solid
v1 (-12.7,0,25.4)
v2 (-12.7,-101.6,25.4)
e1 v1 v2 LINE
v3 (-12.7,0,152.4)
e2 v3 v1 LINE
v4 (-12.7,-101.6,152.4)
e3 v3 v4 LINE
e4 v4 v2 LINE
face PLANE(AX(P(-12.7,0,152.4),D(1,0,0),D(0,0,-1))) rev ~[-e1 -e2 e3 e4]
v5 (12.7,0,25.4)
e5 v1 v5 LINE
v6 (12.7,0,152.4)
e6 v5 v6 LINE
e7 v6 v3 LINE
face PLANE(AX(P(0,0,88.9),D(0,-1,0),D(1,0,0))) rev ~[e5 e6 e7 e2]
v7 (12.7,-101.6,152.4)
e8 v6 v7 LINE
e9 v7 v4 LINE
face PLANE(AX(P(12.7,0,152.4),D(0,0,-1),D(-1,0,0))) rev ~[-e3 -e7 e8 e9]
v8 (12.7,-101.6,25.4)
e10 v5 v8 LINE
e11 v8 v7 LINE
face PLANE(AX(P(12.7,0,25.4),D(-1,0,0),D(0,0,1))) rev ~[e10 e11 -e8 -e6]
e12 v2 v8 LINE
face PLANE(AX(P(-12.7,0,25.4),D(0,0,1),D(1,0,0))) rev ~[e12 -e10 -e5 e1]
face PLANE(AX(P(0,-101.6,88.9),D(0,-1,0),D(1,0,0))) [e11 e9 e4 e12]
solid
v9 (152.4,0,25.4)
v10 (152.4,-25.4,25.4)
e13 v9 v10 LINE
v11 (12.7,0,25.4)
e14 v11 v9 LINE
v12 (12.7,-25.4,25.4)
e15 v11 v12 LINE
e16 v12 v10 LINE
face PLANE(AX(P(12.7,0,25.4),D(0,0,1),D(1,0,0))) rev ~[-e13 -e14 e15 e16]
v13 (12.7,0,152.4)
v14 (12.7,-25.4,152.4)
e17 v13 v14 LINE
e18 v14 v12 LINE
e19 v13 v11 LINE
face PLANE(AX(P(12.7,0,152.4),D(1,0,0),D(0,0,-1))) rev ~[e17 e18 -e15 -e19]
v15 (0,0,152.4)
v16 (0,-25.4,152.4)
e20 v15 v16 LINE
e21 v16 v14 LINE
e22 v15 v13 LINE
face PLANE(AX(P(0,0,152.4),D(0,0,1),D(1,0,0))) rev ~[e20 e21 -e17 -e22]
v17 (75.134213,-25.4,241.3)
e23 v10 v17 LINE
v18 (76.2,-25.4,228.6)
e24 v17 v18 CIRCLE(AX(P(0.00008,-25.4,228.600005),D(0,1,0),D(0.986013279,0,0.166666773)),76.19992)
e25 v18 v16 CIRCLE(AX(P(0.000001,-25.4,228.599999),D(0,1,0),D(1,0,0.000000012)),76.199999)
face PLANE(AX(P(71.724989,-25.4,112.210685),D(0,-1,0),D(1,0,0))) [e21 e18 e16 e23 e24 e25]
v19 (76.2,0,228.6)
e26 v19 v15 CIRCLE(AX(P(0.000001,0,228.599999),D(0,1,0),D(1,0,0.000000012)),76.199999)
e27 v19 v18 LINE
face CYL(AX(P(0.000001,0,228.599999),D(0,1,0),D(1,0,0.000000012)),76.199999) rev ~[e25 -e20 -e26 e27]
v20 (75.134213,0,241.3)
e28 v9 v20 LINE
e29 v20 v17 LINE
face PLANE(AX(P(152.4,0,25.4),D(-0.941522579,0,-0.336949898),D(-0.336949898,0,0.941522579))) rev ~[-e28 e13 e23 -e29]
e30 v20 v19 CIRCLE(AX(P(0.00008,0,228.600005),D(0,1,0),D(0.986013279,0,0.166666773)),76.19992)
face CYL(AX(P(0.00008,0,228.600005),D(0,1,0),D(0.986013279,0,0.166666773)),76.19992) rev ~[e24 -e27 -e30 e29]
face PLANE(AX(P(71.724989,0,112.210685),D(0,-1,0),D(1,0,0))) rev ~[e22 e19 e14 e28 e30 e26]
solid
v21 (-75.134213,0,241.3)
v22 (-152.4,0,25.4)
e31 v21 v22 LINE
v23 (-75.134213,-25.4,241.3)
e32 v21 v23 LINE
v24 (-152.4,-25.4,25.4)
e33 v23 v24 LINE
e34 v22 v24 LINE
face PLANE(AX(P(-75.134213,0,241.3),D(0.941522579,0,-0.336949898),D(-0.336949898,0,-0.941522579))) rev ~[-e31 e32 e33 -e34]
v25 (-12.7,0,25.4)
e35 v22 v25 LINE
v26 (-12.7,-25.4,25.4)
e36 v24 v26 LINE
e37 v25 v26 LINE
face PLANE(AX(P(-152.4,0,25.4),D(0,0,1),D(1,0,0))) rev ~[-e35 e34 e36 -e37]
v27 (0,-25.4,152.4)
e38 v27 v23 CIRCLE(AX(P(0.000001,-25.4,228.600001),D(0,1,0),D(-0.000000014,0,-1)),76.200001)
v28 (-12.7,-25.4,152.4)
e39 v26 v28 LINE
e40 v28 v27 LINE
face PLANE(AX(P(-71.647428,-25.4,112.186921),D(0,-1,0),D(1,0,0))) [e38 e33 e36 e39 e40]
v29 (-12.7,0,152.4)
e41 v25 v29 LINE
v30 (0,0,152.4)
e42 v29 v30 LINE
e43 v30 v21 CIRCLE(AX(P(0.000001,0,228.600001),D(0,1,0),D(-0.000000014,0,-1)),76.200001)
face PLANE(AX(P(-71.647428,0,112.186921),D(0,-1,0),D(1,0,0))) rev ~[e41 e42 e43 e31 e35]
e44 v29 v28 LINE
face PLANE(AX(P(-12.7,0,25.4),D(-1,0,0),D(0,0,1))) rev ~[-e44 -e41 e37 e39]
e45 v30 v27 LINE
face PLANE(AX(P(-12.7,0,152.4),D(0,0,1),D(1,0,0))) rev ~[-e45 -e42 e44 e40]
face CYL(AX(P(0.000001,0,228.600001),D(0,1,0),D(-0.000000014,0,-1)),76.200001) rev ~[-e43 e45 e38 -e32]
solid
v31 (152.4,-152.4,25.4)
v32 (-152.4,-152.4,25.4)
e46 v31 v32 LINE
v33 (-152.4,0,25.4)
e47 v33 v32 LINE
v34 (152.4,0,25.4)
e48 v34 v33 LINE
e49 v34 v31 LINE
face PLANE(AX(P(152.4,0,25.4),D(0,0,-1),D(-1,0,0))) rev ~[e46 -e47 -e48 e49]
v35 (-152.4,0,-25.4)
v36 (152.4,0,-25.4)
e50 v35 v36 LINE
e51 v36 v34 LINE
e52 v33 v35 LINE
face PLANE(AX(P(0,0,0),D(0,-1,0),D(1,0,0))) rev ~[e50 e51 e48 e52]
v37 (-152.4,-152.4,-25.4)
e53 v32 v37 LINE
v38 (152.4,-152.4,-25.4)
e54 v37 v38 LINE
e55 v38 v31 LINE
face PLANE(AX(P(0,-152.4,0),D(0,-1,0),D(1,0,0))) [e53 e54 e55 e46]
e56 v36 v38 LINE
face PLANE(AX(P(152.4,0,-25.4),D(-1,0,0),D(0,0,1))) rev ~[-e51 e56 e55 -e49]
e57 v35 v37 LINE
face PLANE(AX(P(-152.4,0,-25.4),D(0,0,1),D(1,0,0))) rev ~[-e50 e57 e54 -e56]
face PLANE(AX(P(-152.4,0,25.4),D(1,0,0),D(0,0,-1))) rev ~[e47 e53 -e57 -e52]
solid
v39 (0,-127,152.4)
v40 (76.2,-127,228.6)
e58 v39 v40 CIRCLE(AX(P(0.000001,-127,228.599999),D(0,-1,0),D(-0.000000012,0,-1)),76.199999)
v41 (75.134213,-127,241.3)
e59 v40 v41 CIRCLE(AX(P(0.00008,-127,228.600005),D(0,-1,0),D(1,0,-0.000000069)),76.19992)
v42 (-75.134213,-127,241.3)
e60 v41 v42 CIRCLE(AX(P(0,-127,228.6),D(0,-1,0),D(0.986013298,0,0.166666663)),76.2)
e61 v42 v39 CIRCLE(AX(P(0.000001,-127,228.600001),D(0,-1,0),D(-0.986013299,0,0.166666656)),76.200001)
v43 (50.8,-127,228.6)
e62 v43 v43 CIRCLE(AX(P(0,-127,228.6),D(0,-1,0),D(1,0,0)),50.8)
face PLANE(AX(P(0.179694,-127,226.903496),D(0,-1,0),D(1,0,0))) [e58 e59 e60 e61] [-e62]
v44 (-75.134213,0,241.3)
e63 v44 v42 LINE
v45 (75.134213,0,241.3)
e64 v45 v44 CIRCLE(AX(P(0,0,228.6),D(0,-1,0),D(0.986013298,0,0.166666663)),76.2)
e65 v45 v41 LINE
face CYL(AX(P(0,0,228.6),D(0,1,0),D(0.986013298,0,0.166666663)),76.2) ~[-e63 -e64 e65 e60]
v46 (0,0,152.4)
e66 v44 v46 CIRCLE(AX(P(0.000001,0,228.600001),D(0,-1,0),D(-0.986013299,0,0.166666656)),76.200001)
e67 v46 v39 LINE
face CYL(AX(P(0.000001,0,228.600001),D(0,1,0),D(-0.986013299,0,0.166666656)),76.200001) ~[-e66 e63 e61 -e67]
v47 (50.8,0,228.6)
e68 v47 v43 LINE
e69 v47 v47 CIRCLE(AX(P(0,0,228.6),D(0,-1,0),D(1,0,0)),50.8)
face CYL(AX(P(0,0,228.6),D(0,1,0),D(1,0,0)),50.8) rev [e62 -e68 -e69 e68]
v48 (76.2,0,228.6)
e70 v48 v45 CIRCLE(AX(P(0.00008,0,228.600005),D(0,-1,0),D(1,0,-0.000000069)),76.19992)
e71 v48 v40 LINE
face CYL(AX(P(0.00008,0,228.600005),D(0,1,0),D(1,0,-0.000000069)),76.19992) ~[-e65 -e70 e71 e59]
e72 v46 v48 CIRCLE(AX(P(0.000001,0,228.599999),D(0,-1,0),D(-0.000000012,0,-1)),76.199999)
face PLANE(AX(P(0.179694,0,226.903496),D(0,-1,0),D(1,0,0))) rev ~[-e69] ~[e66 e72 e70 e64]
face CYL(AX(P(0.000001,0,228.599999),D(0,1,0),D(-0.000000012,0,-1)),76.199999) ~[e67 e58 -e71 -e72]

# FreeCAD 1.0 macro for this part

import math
import FreeCAD as App
import Part
import Sketcher
Q = App.Units.Quantity


def add_polygon(sketch, points):
    """Adds a closed chain of lines whose ends are joined by coincident constraints."""
    first, n = sketch.GeometryCount, len(points)
    for a, b in zip(points, points[1:] + points[:1]):
        sketch.addGeometry(Part.LineSegment(App.Vector(*a, 0), App.Vector(*b, 0)), False)
    for i in range(n):
        sketch.addConstraint(Sketcher.Constraint("Coincident", first + i, 2, first + (i + 1) % n, 1))

doc = App.newDocument("Part")
body = doc.addObject("PartDesign::Body", "Body")

# Sketch on XZ plane
sketch1 = body.newObject("Sketcher::SketchObject", "Sketch")
sketch1.AttachmentSupport = (doc.getObject("XZ_Plane"), [""])
sketch1.MapMode = "FlatFace"
add_polygon(sketch1, [(-152, 25), (-152, -25), (152, -25), (152, 25)])  # lines 0-3
sketch1.addConstraint([
    Sketcher.Constraint("Vertical", 0),
    Sketcher.Constraint("Horizontal", 1),
    Sketcher.Constraint("Vertical", 2),
    Sketcher.Constraint("Horizontal", 3),
    Sketcher.Constraint("Symmetric", 0, 2, 2, 2, -1, 1),
    Sketcher.Constraint("DistanceX", 1, 1, 1, 2, Q("12 in")),
    Sketcher.Constraint("DistanceY", 0, 2, 0, 1, Q("2 in")),
])
pad1 = body.newObject("PartDesign::Pad", "Pad")
pad1.Profile = sketch1
pad1.Length = Q("6 in")
body2 = doc.addObject("PartDesign::Body", "Body001")

# Sketch on XZ plane
sketch2 = body2.newObject("Sketcher::SketchObject", "Sketch001")
sketch2.AttachmentSupport = (doc.getObject("XZ_Plane001"), [""])
sketch2.MapMode = "FlatFace"
sketch2.addGeometry([
    Part.ArcOfCircle(Part.Circle(App.Vector(0, 228.6, 0), App.Vector(0, 0, 1), 76.2), math.radians(9.594068), math.radians(170.405932)),  # 0
    Part.ArcOfCircle(Part.Circle(App.Vector(0.000001, 228.600001, 0), App.Vector(0, 0, 1), 76.200001), math.radians(170.405932), math.radians(269.999999)),  # 1
    Part.ArcOfCircle(Part.Circle(App.Vector(0.000001, 228.599999, 0), App.Vector(0, 0, 1), 76.199999), math.radians(-90.000001), math.radians(0.000001)),  # 2
    Part.ArcOfCircle(Part.Circle(App.Vector(0.00008, 228.600005, 0), App.Vector(0, 0, 1), 76.19992), math.radians(-0.000004), math.radians(9.594074)),  # 3
    Part.Circle(App.Vector(0, 228.6, 0), App.Vector(0, 0, 1), 50.8),  # 4
], False)
sketch2.addConstraint([
    Sketcher.Constraint("Coincident", 0, 2, 1, 1),
    Sketcher.Constraint("Coincident", 1, 2, 2, 1),
    Sketcher.Constraint("Coincident", 2, 2, 3, 1),
    Sketcher.Constraint("Coincident", 3, 2, 0, 1),
    Sketcher.Constraint("Coincident", 1, 3, 0, 3),
    Sketcher.Constraint("Coincident", 2, 3, 0, 3),
    Sketcher.Constraint("Coincident", 4, 3, 0, 3),
    Sketcher.Constraint("PointOnObject", 0, 3, -2),
    Sketcher.Constraint("PointOnObject", 1, 2, -2),
    Sketcher.Constraint("Diameter", 4, Q("4 in")),
    Sketcher.Constraint("Radius", 0, Q("3 in")),
    Sketcher.Constraint("DistanceY", -1, 1, 0, 3, Q("9 in")),
    Sketcher.Constraint("DistanceY", -1, 1, 2, 2, Q("9 in")),
    Sketcher.Constraint("DistanceY", -1, 1, 0, 2, Q("9.5 in")),
    Sketcher.Constraint("DistanceY", -1, 1, 3, 2, Q("9.5 in")),
    Sketcher.Constraint("Radius", 3, Q("76.19992 mm")),
])
pad2 = body2.newObject("PartDesign::Pad", "Pad001")
pad2.Profile = sketch2
pad2.Length = Q("5 in")
body3 = doc.addObject("PartDesign::Body", "Body002")
body3.AllowCompound = True

# Sketch on XZ plane
sketch3 = body3.newObject("Sketcher::SketchObject", "Sketch002")
sketch3.AttachmentSupport = (doc.getObject("XZ_Plane002"), [""])
sketch3.MapMode = "FlatFace"
sketch3.addGeometry([
    Part.LineSegment(App.Vector(12.7, 152.4, 0), App.Vector(12.7, 25.4, 0)),  # 0
    Part.LineSegment(App.Vector(12.7, 25.4, 0), App.Vector(152.4, 25.4, 0)),  # 1
    Part.LineSegment(App.Vector(152.4, 25.4, 0), App.Vector(75.134213, 241.3, 0)),  # 2
    Part.ArcOfCircle(Part.Circle(App.Vector(0.00008, 228.600005, 0), App.Vector(0, 0, 1), 76.19992), math.radians(-0.000004), math.radians(9.594074)),  # 3
    Part.ArcOfCircle(Part.Circle(App.Vector(0.000001, 228.599999, 0), App.Vector(0, 0, 1), 76.199999), math.radians(-90.000001), math.radians(0.000001)),  # 4
    Part.LineSegment(App.Vector(0, 152.4, 0), App.Vector(12.7, 152.4, 0)),  # 5
    Part.LineSegment(App.Vector(-75.134213, 241.3, 0), App.Vector(-152.4, 25.4, 0)),  # 6
    Part.LineSegment(App.Vector(-152.4, 25.4, 0), App.Vector(-12.7, 25.4, 0)),  # 7
    Part.LineSegment(App.Vector(-12.7, 25.4, 0), App.Vector(-12.7, 152.4, 0)),  # 8
    Part.LineSegment(App.Vector(-12.7, 152.4, 0), App.Vector(0, 152.4, 0)),  # 9
    Part.ArcOfCircle(Part.Circle(App.Vector(0.000001, 228.600001, 0), App.Vector(0, 0, 1), 76.200001), math.radians(170.405932), math.radians(269.999999)),  # 10
], False)
sketch3.addConstraint([
    Sketcher.Constraint("Coincident", 0, 2, 1, 1),
    Sketcher.Constraint("Coincident", 1, 2, 2, 1),
    Sketcher.Constraint("Coincident", 2, 2, 3, 2),
    Sketcher.Constraint("Coincident", 3, 1, 4, 2),
    Sketcher.Constraint("Coincident", 4, 1, 5, 1),
    Sketcher.Constraint("Coincident", 5, 2, 0, 1),
    Sketcher.Constraint("Coincident", 6, 2, 7, 1),
    Sketcher.Constraint("Coincident", 7, 2, 8, 1),
    Sketcher.Constraint("Coincident", 8, 2, 9, 1),
    Sketcher.Constraint("Coincident", 9, 2, 10, 2),
    Sketcher.Constraint("Coincident", 10, 1, 6, 1),
    Sketcher.Constraint("Vertical", 0),
    Sketcher.Constraint("Horizontal", 1),
    Sketcher.Constraint("Horizontal", 5),
    Sketcher.Constraint("Horizontal", 7),
    Sketcher.Constraint("Vertical", 8),
    Sketcher.Constraint("Horizontal", 9),
    Sketcher.Constraint("Coincident", 10, 3, 4, 3),
    Sketcher.Constraint("Coincident", 9, 2, 4, 1),
    Sketcher.Constraint("PointOnObject", 4, 3, -2),
    Sketcher.Constraint("PointOnObject", 4, 1, -2),
    Sketcher.Constraint("Radius", 4, Q("3 in")),
    Sketcher.Constraint("DistanceY", 0, 2, 0, 1, Q("5 in")),
    Sketcher.Constraint("DistanceY", 8, 1, 8, 2, Q("5 in")),
    Sketcher.Constraint("DistanceX", 1, 1, 1, 2, Q("5.5 in")),
    Sketcher.Constraint("DistanceX", 5, 1, 5, 2, Q("0.5 in")),
    Sketcher.Constraint("DistanceX", 7, 1, 7, 2, Q("5.5 in")),
    Sketcher.Constraint("DistanceX", 9, 1, 9, 2, Q("0.5 in")),
    Sketcher.Constraint("DistanceY", -1, 1, 4, 3, Q("9 in")),
    Sketcher.Constraint("DistanceY", -1, 1, 3, 1, Q("9 in")),
    Sketcher.Constraint("DistanceY", -1, 1, 2, 2, Q("9.5 in")),
    Sketcher.Constraint("DistanceY", -1, 1, 10, 1, Q("9.5 in")),
    Sketcher.Constraint("Radius", 3, Q("76.19992 mm")),
    Sketcher.Constraint("DistanceX", 10, 3, 2, 2, Q("75.134212 mm")),
])
pad3 = body3.newObject("PartDesign::Pad", "Pad002")
pad3.Profile = sketch3
pad3.Length = Q("1 in")
body4 = doc.addObject("PartDesign::Body", "Body003")

# Sketch on XZ plane
sketch4 = body4.newObject("Sketcher::SketchObject", "Sketch003")
sketch4.AttachmentSupport = (doc.getObject("XZ_Plane003"), [""])
sketch4.MapMode = "FlatFace"
add_polygon(sketch4, [(-13, 152), (-13, 25), (13, 25), (13, 152)])  # lines 0-3
sketch4.addConstraint([
    Sketcher.Constraint("Vertical", 0),
    Sketcher.Constraint("Horizontal", 1),
    Sketcher.Constraint("Vertical", 2),
    Sketcher.Constraint("Horizontal", 3),
    Sketcher.Constraint("DistanceX", 1, 1, 1, 2, Q("1 in")),
    Sketcher.Constraint("DistanceY", 0, 2, 0, 1, Q("5 in")),
    Sketcher.Constraint("DistanceY", -1, 1, 0, 2, Q("1 in")),
    Sketcher.Constraint("DistanceX", 0, 2, -1, 1, Q("0.5 in")),
])
pad4 = body4.newObject("PartDesign::Pad", "Pad003")
pad4.Profile = sketch4
pad4.Length = Q("4 in")

doc.recompute()
